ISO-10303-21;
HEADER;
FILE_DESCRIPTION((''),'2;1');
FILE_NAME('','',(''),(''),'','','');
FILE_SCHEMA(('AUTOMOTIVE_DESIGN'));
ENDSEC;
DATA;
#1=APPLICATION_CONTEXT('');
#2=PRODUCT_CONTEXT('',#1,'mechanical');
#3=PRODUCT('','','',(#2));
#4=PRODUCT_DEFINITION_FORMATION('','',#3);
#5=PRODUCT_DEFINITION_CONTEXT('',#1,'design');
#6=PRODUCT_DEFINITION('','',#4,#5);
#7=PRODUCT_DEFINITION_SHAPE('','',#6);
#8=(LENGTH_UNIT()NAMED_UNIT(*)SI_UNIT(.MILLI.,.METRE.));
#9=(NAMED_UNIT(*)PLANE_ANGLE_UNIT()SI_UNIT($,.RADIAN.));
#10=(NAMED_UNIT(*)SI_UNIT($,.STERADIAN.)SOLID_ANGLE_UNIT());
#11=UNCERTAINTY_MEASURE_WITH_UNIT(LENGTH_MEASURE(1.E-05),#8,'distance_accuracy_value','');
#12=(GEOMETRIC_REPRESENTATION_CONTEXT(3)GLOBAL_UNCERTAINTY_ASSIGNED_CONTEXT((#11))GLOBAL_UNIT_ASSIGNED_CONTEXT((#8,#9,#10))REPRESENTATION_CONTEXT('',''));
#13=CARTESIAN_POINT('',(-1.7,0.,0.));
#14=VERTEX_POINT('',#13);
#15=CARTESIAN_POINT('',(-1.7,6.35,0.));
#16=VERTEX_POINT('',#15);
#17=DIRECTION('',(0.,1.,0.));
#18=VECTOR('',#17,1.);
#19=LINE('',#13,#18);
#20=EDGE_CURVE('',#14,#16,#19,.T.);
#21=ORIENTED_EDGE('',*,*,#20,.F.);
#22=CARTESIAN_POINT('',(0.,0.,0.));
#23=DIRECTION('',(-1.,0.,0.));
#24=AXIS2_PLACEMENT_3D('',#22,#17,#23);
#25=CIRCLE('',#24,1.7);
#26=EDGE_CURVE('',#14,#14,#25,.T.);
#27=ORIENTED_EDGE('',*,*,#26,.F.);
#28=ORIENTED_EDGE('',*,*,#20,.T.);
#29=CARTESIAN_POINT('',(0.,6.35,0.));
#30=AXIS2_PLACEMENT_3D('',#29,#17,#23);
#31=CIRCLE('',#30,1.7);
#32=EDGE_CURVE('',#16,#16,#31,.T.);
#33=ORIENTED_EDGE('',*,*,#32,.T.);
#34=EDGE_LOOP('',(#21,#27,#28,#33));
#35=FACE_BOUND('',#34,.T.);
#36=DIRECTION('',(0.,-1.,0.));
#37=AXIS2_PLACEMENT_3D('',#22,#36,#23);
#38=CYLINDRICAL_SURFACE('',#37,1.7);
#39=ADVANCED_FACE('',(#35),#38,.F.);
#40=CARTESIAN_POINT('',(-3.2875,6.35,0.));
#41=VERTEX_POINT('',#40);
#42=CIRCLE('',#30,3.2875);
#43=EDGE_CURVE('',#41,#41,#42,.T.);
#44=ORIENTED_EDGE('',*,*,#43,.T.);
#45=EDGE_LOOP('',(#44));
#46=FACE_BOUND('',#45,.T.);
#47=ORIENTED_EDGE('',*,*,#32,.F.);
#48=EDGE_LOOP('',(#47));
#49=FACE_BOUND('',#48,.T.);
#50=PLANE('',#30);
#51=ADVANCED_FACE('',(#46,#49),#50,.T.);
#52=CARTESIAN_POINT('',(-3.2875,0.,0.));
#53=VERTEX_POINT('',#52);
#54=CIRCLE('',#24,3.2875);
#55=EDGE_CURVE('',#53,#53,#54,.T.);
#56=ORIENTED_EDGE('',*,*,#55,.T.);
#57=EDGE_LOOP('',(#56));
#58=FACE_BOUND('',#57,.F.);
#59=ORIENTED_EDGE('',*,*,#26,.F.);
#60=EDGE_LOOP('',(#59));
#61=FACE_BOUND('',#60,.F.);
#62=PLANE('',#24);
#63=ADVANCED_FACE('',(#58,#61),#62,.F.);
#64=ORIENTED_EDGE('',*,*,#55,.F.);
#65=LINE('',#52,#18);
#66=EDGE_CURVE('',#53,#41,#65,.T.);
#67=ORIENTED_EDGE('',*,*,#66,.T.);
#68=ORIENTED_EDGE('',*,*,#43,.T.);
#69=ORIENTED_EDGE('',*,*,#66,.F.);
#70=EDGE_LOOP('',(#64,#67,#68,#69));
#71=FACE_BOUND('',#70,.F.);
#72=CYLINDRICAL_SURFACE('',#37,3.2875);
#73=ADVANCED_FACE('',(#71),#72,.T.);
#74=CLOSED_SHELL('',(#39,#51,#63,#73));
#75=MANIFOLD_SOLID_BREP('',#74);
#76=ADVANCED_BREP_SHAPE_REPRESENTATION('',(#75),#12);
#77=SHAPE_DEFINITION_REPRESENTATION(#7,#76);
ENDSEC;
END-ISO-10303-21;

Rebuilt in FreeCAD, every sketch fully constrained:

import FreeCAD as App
import Part
import Sketcher
Q = App.Units.Quantity

doc = App.newDocument("Part")
body = doc.addObject("PartDesign::Body", "Body")

# Sketch on XZ plane
sketch1 = doc.addObject("Sketcher::SketchObject", "Sketch")
body.addObject(sketch1)
sketch1.AttachmentSupport = (doc.XZ_Plane, [""])
sketch1.MapMode = "FlatFace"
sketch1.addGeometry(Part.Circle(App.Vector(0, 0, 0), App.Vector(0, 0, 1), 3.3), False)
sketch1.addGeometry(Part.Circle(App.Vector(0, 0, 0), App.Vector(0, 0, 1), 1.7), False)
sketch1.addConstraint(Sketcher.Constraint("Coincident", 0, 3, -1, 1))
sketch1.addConstraint(Sketcher.Constraint("Coincident", 1, 3, -1, 1))
sketch1.addConstraint(Sketcher.Constraint("Diameter", 1, Q("3.4 mm")))
sketch1.addConstraint(Sketcher.Constraint("Diameter", 0, Q("6.575 mm")))
pad1 = doc.addObject("PartDesign::Pad", "Pad")
body.addObject(pad1)
pad1.Profile = sketch1
pad1.Length = 6.35
pad1.Reversed = True

doc.recompute()
